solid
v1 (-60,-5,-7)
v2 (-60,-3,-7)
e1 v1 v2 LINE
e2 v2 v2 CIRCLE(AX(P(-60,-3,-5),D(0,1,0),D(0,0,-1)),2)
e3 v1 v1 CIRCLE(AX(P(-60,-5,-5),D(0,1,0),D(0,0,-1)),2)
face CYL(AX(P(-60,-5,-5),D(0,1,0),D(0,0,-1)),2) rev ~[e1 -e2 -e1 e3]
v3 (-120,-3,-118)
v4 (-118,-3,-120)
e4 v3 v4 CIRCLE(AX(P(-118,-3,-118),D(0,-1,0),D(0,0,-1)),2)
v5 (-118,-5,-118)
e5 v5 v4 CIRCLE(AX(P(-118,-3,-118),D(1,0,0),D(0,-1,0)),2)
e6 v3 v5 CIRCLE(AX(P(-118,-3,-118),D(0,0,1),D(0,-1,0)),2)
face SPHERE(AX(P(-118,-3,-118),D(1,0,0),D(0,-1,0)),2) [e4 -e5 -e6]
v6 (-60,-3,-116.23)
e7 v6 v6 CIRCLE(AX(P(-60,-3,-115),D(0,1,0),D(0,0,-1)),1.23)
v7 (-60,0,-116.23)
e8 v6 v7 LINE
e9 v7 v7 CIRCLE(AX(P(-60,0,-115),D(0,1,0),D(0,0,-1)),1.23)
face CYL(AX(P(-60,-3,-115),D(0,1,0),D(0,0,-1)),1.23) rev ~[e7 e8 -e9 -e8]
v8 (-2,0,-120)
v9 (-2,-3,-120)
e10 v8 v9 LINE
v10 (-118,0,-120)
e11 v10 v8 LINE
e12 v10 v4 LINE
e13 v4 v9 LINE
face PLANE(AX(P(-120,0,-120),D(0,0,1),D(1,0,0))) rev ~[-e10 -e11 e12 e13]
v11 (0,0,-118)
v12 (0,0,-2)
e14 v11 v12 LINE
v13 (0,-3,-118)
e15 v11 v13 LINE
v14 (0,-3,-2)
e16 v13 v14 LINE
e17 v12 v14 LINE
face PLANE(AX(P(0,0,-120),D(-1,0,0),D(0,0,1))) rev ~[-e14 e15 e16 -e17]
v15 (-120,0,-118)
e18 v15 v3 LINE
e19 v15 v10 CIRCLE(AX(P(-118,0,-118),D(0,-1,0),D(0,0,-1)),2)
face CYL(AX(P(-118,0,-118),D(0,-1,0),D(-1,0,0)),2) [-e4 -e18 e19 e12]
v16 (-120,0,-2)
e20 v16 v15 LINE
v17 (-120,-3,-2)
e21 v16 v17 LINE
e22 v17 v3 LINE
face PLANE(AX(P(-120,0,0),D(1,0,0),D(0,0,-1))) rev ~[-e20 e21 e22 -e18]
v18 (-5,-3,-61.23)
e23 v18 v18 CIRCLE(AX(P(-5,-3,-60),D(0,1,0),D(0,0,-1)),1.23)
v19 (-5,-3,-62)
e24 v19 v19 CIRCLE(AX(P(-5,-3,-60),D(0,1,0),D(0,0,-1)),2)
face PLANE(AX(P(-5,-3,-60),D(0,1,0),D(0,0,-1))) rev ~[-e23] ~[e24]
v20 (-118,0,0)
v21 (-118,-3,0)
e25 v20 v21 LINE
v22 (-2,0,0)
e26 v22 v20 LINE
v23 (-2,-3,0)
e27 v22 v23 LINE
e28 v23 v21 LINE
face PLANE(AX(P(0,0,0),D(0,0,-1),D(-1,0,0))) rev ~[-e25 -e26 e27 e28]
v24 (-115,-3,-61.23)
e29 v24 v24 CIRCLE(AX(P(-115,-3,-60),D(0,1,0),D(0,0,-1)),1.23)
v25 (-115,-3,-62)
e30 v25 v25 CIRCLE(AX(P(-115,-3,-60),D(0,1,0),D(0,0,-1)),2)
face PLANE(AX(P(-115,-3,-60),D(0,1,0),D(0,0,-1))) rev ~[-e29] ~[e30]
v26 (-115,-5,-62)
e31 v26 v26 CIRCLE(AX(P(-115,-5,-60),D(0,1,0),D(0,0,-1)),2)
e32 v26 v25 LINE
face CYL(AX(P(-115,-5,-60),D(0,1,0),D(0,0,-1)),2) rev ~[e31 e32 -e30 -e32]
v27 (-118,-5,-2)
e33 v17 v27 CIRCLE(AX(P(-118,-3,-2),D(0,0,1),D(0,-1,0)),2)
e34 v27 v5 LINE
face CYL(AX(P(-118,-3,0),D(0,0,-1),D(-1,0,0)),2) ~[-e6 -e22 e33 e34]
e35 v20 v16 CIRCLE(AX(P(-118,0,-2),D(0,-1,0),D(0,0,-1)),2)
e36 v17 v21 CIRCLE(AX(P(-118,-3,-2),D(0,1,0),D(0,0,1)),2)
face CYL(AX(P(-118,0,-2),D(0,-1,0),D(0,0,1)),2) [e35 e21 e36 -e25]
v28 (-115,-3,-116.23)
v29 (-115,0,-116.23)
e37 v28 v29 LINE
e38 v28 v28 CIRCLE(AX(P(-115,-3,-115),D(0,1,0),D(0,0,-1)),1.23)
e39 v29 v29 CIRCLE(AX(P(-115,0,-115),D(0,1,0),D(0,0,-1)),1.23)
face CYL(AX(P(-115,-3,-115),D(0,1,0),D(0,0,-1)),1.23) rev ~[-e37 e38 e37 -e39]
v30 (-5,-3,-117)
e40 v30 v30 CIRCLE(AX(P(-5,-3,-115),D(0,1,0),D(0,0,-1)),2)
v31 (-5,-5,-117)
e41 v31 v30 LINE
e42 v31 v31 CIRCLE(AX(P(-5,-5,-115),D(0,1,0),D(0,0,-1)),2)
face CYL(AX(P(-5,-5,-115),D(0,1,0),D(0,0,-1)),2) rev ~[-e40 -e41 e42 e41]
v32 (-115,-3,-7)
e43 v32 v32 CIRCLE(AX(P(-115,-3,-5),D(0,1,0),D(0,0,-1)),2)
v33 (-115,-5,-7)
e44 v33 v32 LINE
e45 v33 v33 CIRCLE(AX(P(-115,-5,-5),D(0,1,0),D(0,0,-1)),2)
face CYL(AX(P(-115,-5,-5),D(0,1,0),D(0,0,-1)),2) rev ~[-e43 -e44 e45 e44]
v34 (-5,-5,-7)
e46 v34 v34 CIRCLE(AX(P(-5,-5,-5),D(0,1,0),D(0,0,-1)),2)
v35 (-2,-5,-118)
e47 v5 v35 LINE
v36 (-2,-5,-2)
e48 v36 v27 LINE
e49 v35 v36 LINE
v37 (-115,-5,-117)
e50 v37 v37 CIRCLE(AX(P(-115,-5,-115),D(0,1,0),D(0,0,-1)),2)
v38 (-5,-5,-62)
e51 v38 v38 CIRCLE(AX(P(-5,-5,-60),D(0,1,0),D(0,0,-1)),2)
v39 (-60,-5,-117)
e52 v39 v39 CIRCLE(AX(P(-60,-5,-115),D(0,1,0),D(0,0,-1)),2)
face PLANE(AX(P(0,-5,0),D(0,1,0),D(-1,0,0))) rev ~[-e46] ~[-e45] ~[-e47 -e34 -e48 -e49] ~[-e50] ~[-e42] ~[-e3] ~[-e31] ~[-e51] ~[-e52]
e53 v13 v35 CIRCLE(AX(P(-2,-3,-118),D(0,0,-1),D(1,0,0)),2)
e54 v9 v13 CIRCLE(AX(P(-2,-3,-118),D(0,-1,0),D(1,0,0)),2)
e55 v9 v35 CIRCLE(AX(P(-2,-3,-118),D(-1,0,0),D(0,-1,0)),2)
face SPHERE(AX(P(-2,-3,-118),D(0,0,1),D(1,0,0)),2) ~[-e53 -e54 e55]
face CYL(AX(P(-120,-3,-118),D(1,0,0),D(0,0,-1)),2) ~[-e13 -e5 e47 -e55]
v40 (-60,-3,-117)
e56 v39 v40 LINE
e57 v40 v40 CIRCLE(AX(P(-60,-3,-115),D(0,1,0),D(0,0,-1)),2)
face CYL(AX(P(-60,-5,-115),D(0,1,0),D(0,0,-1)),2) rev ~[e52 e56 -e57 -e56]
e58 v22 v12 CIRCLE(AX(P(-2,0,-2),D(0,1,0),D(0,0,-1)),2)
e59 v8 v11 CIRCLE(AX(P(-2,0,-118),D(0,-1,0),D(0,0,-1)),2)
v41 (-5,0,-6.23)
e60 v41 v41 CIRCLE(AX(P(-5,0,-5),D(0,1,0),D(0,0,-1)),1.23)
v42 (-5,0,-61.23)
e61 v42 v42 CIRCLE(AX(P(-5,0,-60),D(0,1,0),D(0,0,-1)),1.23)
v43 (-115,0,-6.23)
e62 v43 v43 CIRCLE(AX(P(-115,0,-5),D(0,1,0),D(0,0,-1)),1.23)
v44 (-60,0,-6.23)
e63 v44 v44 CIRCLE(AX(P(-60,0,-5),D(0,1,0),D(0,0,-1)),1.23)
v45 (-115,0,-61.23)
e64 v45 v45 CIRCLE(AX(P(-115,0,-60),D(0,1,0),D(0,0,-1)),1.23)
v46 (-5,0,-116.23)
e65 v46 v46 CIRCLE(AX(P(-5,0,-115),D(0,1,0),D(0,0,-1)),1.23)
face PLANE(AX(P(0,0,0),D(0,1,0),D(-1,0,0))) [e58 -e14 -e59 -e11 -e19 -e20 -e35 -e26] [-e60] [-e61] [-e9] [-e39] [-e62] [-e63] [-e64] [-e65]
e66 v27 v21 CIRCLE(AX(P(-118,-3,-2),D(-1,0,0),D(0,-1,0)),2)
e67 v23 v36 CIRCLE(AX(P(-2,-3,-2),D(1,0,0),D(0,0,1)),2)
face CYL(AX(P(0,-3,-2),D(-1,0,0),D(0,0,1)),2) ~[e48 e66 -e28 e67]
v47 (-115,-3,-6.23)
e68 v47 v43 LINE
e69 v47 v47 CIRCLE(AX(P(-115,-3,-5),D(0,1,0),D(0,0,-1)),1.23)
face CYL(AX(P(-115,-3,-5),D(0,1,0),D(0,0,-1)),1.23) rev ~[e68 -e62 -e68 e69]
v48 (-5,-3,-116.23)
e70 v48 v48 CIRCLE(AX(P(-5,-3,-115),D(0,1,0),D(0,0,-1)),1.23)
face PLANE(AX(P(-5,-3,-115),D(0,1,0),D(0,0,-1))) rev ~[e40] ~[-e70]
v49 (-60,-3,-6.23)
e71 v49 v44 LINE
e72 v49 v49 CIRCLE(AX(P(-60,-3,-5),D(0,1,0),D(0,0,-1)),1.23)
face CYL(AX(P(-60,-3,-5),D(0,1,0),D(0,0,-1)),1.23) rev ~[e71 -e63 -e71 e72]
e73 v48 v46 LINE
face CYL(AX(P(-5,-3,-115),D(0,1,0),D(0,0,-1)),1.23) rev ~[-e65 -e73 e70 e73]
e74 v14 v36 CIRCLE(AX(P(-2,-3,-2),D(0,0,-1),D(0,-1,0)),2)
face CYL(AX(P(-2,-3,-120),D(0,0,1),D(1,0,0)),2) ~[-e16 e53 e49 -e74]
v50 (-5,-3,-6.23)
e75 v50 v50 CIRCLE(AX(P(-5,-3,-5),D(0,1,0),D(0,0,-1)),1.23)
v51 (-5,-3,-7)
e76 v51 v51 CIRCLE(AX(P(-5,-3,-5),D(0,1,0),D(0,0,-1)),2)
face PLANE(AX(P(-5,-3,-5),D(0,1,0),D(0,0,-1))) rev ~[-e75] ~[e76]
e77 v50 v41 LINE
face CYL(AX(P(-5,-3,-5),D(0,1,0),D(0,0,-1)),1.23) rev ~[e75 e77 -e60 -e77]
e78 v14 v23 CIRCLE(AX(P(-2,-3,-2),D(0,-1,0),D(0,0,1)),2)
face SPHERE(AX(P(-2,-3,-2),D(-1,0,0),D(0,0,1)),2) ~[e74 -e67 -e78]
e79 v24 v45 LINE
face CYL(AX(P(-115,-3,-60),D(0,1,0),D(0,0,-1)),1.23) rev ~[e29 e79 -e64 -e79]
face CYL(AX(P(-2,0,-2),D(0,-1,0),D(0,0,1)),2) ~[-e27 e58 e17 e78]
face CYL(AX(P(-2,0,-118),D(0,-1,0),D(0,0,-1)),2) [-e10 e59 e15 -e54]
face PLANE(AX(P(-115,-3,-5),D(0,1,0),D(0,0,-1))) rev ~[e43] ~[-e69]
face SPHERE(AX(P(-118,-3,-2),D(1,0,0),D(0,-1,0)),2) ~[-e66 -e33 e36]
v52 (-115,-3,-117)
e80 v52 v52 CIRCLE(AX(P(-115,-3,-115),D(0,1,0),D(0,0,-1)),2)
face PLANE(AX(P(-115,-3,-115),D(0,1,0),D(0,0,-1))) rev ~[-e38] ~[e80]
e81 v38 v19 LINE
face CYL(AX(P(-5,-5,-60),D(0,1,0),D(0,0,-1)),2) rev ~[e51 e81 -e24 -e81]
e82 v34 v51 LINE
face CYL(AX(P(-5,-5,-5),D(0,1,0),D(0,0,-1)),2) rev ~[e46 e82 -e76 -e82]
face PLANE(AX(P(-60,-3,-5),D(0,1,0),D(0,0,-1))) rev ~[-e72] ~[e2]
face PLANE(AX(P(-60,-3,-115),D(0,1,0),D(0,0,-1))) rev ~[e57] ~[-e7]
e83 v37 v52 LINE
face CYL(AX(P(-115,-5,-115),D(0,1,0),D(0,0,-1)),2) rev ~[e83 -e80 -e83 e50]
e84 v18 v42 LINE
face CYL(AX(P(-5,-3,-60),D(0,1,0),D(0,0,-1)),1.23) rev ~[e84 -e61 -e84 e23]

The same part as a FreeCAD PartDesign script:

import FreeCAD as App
import Part
import Sketcher


def edges_at(feature, points):
    """Names of the edges that pass closest to the given points."""
    edges = feature.Shape.Edges
    near = lambda p: min(range(len(edges)), key=lambda i: edges[i].distToShape(Part.Vertex(*p))[0])
    return sorted({f"Edge{near(p) + 1}" for p in points})

doc = App.newDocument("Part")
body = doc.addObject("PartDesign::Body", "Body")

# Sketch on XZ plane
sketch1 = doc.addObject("Sketcher::SketchObject", "Sketch")
body.addObject(sketch1)
sketch1.AttachmentSupport = (doc.XZ_Plane, [""])
sketch1.MapMode = "FlatFace"
sketch1.addGeometry([
    Part.LineSegment(App.Vector(-120, 0, 0), App.Vector(0, 0, 0)),
    Part.LineSegment(App.Vector(0, 0, 0), App.Vector(0, -120, 0)),
    Part.LineSegment(App.Vector(0, -120, 0), App.Vector(-120, -120, 0)),
    Part.LineSegment(App.Vector(-120, -120, 0), App.Vector(-120, 0, 0)),
], False)
sketch1.addConstraint([
    Sketcher.Constraint("Coincident", 0, 2, 1, 1),
    Sketcher.Constraint("Coincident", 1, 2, 2, 1),
    Sketcher.Constraint("Coincident", 2, 2, 3, 1),
    Sketcher.Constraint("Coincident", 3, 2, 0, 1),
    Sketcher.Constraint("Horizontal", 0),
    Sketcher.Constraint("Vertical", 1),
    Sketcher.Constraint("Horizontal", 2),
    Sketcher.Constraint("Vertical", 3),
    Sketcher.Constraint("Coincident", 0, 2, -1, 1),
    Sketcher.Constraint("Equal", 2, 1),
    Sketcher.Constraint("DistanceX", 0, 1, 0, 2, 120.0),
])
pad1 = doc.addObject("PartDesign::Pad", "Pad")
body.addObject(pad1)
pad1.Profile = sketch1
pad1.Length = 5
doc.recompute()

fillet = doc.addObject("PartDesign::Fillet", "Fillet")
body.addObject(fillet)
fillet.Base = (pad1, edges_at(pad1, [
    (-60, -5, 0),
    (0, -2.5, 0),
    (0, -5, -60),
    (0, -2.5, -120),
    (-60, -5, -120),
    (-120, -5, -60),
    (-120, -2.5, -120),
    (-120, -2.5, 0),
]))
fillet.Radius = 2

# Sketch on XZ plane
sketch2 = doc.addObject("Sketcher::SketchObject", "Sketch001")
body.addObject(sketch2)
sketch2.AttachmentSupport = (doc.XZ_Plane, [""])
sketch2.MapMode = "FlatFace"
sketch2.AttachmentOffset = App.Placement(App.Vector(0, 0, 5), App.Rotation())
sketch2.addGeometry([
    Part.Circle(App.Vector(-5, -5, 0), App.Vector(0, 0, 1), 1.23),  # 0
    Part.Circle(App.Vector(-60, -5, 0), App.Vector(0, 0, 1), 1.23),  # 1
    Part.Circle(App.Vector(-115, -5, 0), App.Vector(0, 0, 1), 1.23),  # 2
    Part.Circle(App.Vector(-115, -115, 0), App.Vector(0, 0, 1), 1.23),  # 3
    Part.Circle(App.Vector(-5, -115, 0), App.Vector(0, 0, 1), 1.23),  # 4
    Part.Circle(App.Vector(-5, -60, 0), App.Vector(0, 0, 1), 1.23),  # 5
    Part.Circle(App.Vector(-115, -60, 0), App.Vector(0, 0, 1), 1.23),  # 6
    Part.Circle(App.Vector(-60, -115, 0), App.Vector(0, 0, 1), 1.23),  # 7
], False)
sketch2.addConstraint([
    Sketcher.Constraint("Equal", 0, 1),
    Sketcher.Constraint("Equal", 1, 2),
    Sketcher.Constraint("Equal", 2, 3),
    Sketcher.Constraint("Equal", 3, 4),
    Sketcher.Constraint("Equal", 4, 5),
    Sketcher.Constraint("Equal", 5, 6),
    Sketcher.Constraint("Equal", 6, 7),
    Sketcher.Constraint("Horizontal", 0, 3, 1, 3),
    Sketcher.Constraint("Horizontal", 1, 3, 2, 3),
    Sketcher.Constraint("Horizontal", 3, 3, 4, 3),
    Sketcher.Constraint("Horizontal", 5, 3, 6, 3),
    Sketcher.Constraint("Horizontal", 4, 3, 7, 3),
    Sketcher.Constraint("Vertical", 2, 3, 3, 3),
    Sketcher.Constraint("Vertical", 0, 3, 4, 3),
    Sketcher.Constraint("Vertical", 4, 3, 5, 3),
    Sketcher.Constraint("Vertical", 3, 3, 6, 3),
    Sketcher.Constraint("Vertical", 1, 3, 7, 3),
    Sketcher.Constraint("Diameter", 0, 2.46),
    Sketcher.Constraint("DistanceX", 0, 3, -1, 1, 5.0),
    Sketcher.Constraint("DistanceY", 0, 3, -1, 1, 5.0),
    Sketcher.Constraint("DistanceX", 1, 3, -1, 1, 60.0),
    Sketcher.Constraint("DistanceX", 2, 3, -1, 1, 115.0),
    Sketcher.Constraint("DistanceY", 3, 3, -1, 1, 115.0),
    Sketcher.Constraint("DistanceY", 5, 3, -1, 1, 60.0),
])
doc.recompute()
hole = doc.addObject("PartDesign::Hole", "Hole")
body.addObject(hole)
hole.Profile = sketch2
hole.ThreadType = "None"
hole.Diameter = 2.46
hole.DepthType = "Dimension"
hole.Depth = 8.8
hole.DrillPoint = "Flat"
hole.HoleCutType = "Counterbore"
hole.HoleCutDiameter = 4
hole.HoleCutDepth = 2

doc.recompute()
